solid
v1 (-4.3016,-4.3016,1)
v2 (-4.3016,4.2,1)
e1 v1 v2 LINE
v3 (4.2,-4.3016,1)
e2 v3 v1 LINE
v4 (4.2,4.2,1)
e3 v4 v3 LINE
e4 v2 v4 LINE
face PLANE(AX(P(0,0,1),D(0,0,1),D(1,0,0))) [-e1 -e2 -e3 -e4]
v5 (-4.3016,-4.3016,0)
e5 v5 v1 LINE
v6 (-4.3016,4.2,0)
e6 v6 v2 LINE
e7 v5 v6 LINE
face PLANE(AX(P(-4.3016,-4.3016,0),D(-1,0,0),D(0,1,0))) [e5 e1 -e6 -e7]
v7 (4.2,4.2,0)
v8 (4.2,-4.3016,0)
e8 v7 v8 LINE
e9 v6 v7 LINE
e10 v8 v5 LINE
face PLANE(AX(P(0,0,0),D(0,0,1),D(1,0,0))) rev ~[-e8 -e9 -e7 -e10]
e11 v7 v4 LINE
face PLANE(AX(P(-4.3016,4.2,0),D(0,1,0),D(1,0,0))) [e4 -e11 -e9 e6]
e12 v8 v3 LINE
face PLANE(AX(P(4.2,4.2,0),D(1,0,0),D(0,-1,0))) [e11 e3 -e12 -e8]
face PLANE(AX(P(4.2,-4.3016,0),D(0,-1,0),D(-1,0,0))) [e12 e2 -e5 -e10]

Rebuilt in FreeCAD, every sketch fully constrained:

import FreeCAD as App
import Part
import Sketcher
from FreeCAD import Vector


def add_polygon(sketch, points):
    """Adds a closed chain of lines whose ends are joined by coincident constraints."""
    first, n = sketch.GeometryCount, len(points)
    for a, b in zip(points, points[1:] + points[:1]):
        sketch.addGeometry(Part.LineSegment(App.Vector(*a, 0), App.Vector(*b, 0)), False)
    for i in range(n):
        sketch.addConstraint(Sketcher.Constraint("Coincident", first + i, 2, first + (i + 1) % n, 1))

doc = App.newDocument("Part")
params = doc.addObject("Spreadsheet::Sheet", "Params")
for row, (alias, value) in enumerate([
    ("pad1_length", "1 mm"),
], start=1):
    params.set(f"A{row}", alias)
    params.set(f"B{row}", "=" + value)
    params.setAlias(f"B{row}", alias)

body = doc.addObject("PartDesign::Body", "Body")

# Sketch on XY plane
sketch1 = body.newObject("Sketcher::SketchObject", "Sketch")
sketch1.AttachmentSupport = (doc.getObject("XY_Plane"), [""])
sketch1.MapMode = "FlatFace"
add_polygon(sketch1, [(4, 4), (-4, 4), (-4, -4), (4, -4)])  # lines 0-3
sketch1.addConstraint([
    Sketcher.Constraint("Horizontal", 0),
    Sketcher.Constraint("Vertical", 1),
    Sketcher.Constraint("Horizontal", 2),
    Sketcher.Constraint("Vertical", 3),
    Sketcher.Constraint("Equal", 2, 1),
    Sketcher.Constraint("DistanceY", -1, 1, 0, 2, 4.2),
    Sketcher.Constraint("DistanceX", -1, 1, 2, 2, 4.2),
    Sketcher.Constraint("DistanceX", 0, 2, 0, 1, 8.5016),
])
pad1 = body.newObject("PartDesign::Pad", "Pad")
pad1.Profile = sketch1
pad1.setExpression("Length", "Params.pad1_length")

doc.recompute()
